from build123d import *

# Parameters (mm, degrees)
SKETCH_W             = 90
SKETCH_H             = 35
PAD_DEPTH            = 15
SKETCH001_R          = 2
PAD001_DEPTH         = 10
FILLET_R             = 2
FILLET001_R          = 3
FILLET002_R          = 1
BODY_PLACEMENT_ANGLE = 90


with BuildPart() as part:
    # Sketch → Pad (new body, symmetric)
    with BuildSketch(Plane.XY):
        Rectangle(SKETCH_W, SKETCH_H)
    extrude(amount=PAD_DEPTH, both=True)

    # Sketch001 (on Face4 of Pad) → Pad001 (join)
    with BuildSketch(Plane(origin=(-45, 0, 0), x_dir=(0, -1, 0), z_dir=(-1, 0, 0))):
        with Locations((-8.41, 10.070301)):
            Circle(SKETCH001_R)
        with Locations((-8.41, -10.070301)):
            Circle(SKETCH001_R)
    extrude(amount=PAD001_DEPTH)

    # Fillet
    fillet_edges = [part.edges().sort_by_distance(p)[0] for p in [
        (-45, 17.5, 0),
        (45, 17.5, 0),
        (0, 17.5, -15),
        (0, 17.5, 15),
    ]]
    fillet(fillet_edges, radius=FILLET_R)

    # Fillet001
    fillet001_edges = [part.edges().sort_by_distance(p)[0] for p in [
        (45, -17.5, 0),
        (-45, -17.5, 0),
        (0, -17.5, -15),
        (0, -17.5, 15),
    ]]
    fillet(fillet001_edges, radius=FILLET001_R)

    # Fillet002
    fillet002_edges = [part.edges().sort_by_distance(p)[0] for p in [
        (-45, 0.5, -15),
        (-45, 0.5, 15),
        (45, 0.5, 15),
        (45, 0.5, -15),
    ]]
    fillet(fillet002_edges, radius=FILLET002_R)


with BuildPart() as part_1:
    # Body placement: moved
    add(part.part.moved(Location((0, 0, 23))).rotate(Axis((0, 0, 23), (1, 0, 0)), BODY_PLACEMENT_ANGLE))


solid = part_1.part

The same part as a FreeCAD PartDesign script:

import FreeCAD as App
import Part
import Sketcher
from FreeCAD import Vector


def edges_at(feature, points):
    """Names of the edges that pass closest to the given points."""
    edges = feature.Shape.Edges
    near = lambda p: min(range(len(edges)), key=lambda i: edges[i].distToShape(Part.Vertex(*p))[0])
    return sorted({f"Edge{near(p) + 1}" for p in points})

doc = App.newDocument("Part")
body = doc.addObject("PartDesign::Body", "Body")

sketch1 = body.newObject("Sketcher::SketchObject", "Sketch")
sketch1.AttachmentSupport = (doc.getObject("XY_Plane"), [""])
sketch1.MapMode = "FlatFace"
sketch1.addGeometry([
    Part.LineSegment(Vector(-45, 18, 0), Vector(-45, -18, 0)),
    Part.LineSegment(Vector(-45, -18, 0), Vector(45, -18, 0)),
    Part.LineSegment(Vector(45, -18, 0), Vector(45, 18, 0)),
    Part.LineSegment(Vector(45, 18, 0), Vector(-45, 18, 0)),
], False)
sketch1.addConstraint([
    Sketcher.Constraint("Coincident", 0, 2, 1, 1),
    Sketcher.Constraint("Coincident", 1, 2, 2, 1),
    Sketcher.Constraint("Coincident", 2, 2, 3, 1),
    Sketcher.Constraint("Coincident", 3, 2, 0, 1),
    Sketcher.Constraint("Vertical", 0),
    Sketcher.Constraint("Horizontal", 1),
    Sketcher.Constraint("Vertical", 2),
    Sketcher.Constraint("Horizontal", 3),
    Sketcher.Constraint("Symmetric", 0, 2, 2, 2, -1, 1),
    Sketcher.Constraint("DistanceX", 1, 1, 1, 2, 90.0),
    Sketcher.Constraint("DistanceY", 0, 2, 0, 1, 35.0),
])
pad1 = body.newObject("PartDesign::Pad", "Pad")
pad1.Profile = sketch1
pad1.Length = 30
pad1.Midplane = True

sketch2 = body.newObject("Sketcher::SketchObject", "Sketch001")
sketch2.AttachmentSupport = (doc.getObject("YZ_Plane"), [""])
sketch2.MapMode = "FlatFace"
sketch2.AttachmentOffset = App.Placement(Vector(0, 0, -45), App.Rotation())
sketch2.addGeometry([
    Part.Circle(Vector(8.4, 10.1, 0), Vector(0, 0, 1), 2),
    Part.Circle(Vector(8.4, -10.1, 0), Vector(0, 0, 1), 2),
], False)
sketch2.addConstraint([
    Sketcher.Constraint("Equal", 0, 1),
    Sketcher.Constraint("Symmetric", 0, 3, 1, 3, -1),
    Sketcher.Constraint("Diameter", 0, 4.0),
    Sketcher.Constraint("DistanceX", -1, 1, 0, 3, 8.41),
    Sketcher.Constraint("DistanceY", -1, 1, 0, 3, 10.070301),
])
pad2 = body.newObject("PartDesign::Pad", "Pad001")
pad2.Profile = sketch2
pad2.Length = 10
pad2.Reversed = True
doc.recompute()

fillet = body.newObject("PartDesign::Fillet", "Fillet")
fillet.Base = (pad2, edges_at(pad2, [
    (-45, 17.5, 0),
    (45, 17.5, 0),
    (0, 17.5, -15),
    (0, 17.5, 15),
]))
fillet.Radius = 2
doc.recompute()

fillet2 = body.newObject("PartDesign::Fillet", "Fillet001")
fillet2.Base = (fillet, edges_at(fillet, [
    (45, -17.5, 0),
    (-45, -17.5, 0),
    (0, -17.5, -15),
    (0, -17.5, 15),
]))
fillet2.Radius = 3
doc.recompute()

fillet3 = body.newObject("PartDesign::Fillet", "Fillet002")
fillet3.Base = (fillet2, edges_at(fillet2, [
    (-45, 0.5, -15),
    (-45, 0.5, 15),
    (45, 0.5, 15),
    (45, 0.5, -15),
]))
fillet3.Radius = 1
body2 = doc.addObject("PartDesign::Body", "Body001")
doc.recompute()

body.Placement = App.Placement(Vector(0, 0, 23), App.Rotation(Vector(1, 0, 0), 90))
boolean = body2.newObject("PartDesign::Boolean", "Boolean")
boolean.Type = "Fuse"
boolean.addObjects([body])

doc.recompute()
